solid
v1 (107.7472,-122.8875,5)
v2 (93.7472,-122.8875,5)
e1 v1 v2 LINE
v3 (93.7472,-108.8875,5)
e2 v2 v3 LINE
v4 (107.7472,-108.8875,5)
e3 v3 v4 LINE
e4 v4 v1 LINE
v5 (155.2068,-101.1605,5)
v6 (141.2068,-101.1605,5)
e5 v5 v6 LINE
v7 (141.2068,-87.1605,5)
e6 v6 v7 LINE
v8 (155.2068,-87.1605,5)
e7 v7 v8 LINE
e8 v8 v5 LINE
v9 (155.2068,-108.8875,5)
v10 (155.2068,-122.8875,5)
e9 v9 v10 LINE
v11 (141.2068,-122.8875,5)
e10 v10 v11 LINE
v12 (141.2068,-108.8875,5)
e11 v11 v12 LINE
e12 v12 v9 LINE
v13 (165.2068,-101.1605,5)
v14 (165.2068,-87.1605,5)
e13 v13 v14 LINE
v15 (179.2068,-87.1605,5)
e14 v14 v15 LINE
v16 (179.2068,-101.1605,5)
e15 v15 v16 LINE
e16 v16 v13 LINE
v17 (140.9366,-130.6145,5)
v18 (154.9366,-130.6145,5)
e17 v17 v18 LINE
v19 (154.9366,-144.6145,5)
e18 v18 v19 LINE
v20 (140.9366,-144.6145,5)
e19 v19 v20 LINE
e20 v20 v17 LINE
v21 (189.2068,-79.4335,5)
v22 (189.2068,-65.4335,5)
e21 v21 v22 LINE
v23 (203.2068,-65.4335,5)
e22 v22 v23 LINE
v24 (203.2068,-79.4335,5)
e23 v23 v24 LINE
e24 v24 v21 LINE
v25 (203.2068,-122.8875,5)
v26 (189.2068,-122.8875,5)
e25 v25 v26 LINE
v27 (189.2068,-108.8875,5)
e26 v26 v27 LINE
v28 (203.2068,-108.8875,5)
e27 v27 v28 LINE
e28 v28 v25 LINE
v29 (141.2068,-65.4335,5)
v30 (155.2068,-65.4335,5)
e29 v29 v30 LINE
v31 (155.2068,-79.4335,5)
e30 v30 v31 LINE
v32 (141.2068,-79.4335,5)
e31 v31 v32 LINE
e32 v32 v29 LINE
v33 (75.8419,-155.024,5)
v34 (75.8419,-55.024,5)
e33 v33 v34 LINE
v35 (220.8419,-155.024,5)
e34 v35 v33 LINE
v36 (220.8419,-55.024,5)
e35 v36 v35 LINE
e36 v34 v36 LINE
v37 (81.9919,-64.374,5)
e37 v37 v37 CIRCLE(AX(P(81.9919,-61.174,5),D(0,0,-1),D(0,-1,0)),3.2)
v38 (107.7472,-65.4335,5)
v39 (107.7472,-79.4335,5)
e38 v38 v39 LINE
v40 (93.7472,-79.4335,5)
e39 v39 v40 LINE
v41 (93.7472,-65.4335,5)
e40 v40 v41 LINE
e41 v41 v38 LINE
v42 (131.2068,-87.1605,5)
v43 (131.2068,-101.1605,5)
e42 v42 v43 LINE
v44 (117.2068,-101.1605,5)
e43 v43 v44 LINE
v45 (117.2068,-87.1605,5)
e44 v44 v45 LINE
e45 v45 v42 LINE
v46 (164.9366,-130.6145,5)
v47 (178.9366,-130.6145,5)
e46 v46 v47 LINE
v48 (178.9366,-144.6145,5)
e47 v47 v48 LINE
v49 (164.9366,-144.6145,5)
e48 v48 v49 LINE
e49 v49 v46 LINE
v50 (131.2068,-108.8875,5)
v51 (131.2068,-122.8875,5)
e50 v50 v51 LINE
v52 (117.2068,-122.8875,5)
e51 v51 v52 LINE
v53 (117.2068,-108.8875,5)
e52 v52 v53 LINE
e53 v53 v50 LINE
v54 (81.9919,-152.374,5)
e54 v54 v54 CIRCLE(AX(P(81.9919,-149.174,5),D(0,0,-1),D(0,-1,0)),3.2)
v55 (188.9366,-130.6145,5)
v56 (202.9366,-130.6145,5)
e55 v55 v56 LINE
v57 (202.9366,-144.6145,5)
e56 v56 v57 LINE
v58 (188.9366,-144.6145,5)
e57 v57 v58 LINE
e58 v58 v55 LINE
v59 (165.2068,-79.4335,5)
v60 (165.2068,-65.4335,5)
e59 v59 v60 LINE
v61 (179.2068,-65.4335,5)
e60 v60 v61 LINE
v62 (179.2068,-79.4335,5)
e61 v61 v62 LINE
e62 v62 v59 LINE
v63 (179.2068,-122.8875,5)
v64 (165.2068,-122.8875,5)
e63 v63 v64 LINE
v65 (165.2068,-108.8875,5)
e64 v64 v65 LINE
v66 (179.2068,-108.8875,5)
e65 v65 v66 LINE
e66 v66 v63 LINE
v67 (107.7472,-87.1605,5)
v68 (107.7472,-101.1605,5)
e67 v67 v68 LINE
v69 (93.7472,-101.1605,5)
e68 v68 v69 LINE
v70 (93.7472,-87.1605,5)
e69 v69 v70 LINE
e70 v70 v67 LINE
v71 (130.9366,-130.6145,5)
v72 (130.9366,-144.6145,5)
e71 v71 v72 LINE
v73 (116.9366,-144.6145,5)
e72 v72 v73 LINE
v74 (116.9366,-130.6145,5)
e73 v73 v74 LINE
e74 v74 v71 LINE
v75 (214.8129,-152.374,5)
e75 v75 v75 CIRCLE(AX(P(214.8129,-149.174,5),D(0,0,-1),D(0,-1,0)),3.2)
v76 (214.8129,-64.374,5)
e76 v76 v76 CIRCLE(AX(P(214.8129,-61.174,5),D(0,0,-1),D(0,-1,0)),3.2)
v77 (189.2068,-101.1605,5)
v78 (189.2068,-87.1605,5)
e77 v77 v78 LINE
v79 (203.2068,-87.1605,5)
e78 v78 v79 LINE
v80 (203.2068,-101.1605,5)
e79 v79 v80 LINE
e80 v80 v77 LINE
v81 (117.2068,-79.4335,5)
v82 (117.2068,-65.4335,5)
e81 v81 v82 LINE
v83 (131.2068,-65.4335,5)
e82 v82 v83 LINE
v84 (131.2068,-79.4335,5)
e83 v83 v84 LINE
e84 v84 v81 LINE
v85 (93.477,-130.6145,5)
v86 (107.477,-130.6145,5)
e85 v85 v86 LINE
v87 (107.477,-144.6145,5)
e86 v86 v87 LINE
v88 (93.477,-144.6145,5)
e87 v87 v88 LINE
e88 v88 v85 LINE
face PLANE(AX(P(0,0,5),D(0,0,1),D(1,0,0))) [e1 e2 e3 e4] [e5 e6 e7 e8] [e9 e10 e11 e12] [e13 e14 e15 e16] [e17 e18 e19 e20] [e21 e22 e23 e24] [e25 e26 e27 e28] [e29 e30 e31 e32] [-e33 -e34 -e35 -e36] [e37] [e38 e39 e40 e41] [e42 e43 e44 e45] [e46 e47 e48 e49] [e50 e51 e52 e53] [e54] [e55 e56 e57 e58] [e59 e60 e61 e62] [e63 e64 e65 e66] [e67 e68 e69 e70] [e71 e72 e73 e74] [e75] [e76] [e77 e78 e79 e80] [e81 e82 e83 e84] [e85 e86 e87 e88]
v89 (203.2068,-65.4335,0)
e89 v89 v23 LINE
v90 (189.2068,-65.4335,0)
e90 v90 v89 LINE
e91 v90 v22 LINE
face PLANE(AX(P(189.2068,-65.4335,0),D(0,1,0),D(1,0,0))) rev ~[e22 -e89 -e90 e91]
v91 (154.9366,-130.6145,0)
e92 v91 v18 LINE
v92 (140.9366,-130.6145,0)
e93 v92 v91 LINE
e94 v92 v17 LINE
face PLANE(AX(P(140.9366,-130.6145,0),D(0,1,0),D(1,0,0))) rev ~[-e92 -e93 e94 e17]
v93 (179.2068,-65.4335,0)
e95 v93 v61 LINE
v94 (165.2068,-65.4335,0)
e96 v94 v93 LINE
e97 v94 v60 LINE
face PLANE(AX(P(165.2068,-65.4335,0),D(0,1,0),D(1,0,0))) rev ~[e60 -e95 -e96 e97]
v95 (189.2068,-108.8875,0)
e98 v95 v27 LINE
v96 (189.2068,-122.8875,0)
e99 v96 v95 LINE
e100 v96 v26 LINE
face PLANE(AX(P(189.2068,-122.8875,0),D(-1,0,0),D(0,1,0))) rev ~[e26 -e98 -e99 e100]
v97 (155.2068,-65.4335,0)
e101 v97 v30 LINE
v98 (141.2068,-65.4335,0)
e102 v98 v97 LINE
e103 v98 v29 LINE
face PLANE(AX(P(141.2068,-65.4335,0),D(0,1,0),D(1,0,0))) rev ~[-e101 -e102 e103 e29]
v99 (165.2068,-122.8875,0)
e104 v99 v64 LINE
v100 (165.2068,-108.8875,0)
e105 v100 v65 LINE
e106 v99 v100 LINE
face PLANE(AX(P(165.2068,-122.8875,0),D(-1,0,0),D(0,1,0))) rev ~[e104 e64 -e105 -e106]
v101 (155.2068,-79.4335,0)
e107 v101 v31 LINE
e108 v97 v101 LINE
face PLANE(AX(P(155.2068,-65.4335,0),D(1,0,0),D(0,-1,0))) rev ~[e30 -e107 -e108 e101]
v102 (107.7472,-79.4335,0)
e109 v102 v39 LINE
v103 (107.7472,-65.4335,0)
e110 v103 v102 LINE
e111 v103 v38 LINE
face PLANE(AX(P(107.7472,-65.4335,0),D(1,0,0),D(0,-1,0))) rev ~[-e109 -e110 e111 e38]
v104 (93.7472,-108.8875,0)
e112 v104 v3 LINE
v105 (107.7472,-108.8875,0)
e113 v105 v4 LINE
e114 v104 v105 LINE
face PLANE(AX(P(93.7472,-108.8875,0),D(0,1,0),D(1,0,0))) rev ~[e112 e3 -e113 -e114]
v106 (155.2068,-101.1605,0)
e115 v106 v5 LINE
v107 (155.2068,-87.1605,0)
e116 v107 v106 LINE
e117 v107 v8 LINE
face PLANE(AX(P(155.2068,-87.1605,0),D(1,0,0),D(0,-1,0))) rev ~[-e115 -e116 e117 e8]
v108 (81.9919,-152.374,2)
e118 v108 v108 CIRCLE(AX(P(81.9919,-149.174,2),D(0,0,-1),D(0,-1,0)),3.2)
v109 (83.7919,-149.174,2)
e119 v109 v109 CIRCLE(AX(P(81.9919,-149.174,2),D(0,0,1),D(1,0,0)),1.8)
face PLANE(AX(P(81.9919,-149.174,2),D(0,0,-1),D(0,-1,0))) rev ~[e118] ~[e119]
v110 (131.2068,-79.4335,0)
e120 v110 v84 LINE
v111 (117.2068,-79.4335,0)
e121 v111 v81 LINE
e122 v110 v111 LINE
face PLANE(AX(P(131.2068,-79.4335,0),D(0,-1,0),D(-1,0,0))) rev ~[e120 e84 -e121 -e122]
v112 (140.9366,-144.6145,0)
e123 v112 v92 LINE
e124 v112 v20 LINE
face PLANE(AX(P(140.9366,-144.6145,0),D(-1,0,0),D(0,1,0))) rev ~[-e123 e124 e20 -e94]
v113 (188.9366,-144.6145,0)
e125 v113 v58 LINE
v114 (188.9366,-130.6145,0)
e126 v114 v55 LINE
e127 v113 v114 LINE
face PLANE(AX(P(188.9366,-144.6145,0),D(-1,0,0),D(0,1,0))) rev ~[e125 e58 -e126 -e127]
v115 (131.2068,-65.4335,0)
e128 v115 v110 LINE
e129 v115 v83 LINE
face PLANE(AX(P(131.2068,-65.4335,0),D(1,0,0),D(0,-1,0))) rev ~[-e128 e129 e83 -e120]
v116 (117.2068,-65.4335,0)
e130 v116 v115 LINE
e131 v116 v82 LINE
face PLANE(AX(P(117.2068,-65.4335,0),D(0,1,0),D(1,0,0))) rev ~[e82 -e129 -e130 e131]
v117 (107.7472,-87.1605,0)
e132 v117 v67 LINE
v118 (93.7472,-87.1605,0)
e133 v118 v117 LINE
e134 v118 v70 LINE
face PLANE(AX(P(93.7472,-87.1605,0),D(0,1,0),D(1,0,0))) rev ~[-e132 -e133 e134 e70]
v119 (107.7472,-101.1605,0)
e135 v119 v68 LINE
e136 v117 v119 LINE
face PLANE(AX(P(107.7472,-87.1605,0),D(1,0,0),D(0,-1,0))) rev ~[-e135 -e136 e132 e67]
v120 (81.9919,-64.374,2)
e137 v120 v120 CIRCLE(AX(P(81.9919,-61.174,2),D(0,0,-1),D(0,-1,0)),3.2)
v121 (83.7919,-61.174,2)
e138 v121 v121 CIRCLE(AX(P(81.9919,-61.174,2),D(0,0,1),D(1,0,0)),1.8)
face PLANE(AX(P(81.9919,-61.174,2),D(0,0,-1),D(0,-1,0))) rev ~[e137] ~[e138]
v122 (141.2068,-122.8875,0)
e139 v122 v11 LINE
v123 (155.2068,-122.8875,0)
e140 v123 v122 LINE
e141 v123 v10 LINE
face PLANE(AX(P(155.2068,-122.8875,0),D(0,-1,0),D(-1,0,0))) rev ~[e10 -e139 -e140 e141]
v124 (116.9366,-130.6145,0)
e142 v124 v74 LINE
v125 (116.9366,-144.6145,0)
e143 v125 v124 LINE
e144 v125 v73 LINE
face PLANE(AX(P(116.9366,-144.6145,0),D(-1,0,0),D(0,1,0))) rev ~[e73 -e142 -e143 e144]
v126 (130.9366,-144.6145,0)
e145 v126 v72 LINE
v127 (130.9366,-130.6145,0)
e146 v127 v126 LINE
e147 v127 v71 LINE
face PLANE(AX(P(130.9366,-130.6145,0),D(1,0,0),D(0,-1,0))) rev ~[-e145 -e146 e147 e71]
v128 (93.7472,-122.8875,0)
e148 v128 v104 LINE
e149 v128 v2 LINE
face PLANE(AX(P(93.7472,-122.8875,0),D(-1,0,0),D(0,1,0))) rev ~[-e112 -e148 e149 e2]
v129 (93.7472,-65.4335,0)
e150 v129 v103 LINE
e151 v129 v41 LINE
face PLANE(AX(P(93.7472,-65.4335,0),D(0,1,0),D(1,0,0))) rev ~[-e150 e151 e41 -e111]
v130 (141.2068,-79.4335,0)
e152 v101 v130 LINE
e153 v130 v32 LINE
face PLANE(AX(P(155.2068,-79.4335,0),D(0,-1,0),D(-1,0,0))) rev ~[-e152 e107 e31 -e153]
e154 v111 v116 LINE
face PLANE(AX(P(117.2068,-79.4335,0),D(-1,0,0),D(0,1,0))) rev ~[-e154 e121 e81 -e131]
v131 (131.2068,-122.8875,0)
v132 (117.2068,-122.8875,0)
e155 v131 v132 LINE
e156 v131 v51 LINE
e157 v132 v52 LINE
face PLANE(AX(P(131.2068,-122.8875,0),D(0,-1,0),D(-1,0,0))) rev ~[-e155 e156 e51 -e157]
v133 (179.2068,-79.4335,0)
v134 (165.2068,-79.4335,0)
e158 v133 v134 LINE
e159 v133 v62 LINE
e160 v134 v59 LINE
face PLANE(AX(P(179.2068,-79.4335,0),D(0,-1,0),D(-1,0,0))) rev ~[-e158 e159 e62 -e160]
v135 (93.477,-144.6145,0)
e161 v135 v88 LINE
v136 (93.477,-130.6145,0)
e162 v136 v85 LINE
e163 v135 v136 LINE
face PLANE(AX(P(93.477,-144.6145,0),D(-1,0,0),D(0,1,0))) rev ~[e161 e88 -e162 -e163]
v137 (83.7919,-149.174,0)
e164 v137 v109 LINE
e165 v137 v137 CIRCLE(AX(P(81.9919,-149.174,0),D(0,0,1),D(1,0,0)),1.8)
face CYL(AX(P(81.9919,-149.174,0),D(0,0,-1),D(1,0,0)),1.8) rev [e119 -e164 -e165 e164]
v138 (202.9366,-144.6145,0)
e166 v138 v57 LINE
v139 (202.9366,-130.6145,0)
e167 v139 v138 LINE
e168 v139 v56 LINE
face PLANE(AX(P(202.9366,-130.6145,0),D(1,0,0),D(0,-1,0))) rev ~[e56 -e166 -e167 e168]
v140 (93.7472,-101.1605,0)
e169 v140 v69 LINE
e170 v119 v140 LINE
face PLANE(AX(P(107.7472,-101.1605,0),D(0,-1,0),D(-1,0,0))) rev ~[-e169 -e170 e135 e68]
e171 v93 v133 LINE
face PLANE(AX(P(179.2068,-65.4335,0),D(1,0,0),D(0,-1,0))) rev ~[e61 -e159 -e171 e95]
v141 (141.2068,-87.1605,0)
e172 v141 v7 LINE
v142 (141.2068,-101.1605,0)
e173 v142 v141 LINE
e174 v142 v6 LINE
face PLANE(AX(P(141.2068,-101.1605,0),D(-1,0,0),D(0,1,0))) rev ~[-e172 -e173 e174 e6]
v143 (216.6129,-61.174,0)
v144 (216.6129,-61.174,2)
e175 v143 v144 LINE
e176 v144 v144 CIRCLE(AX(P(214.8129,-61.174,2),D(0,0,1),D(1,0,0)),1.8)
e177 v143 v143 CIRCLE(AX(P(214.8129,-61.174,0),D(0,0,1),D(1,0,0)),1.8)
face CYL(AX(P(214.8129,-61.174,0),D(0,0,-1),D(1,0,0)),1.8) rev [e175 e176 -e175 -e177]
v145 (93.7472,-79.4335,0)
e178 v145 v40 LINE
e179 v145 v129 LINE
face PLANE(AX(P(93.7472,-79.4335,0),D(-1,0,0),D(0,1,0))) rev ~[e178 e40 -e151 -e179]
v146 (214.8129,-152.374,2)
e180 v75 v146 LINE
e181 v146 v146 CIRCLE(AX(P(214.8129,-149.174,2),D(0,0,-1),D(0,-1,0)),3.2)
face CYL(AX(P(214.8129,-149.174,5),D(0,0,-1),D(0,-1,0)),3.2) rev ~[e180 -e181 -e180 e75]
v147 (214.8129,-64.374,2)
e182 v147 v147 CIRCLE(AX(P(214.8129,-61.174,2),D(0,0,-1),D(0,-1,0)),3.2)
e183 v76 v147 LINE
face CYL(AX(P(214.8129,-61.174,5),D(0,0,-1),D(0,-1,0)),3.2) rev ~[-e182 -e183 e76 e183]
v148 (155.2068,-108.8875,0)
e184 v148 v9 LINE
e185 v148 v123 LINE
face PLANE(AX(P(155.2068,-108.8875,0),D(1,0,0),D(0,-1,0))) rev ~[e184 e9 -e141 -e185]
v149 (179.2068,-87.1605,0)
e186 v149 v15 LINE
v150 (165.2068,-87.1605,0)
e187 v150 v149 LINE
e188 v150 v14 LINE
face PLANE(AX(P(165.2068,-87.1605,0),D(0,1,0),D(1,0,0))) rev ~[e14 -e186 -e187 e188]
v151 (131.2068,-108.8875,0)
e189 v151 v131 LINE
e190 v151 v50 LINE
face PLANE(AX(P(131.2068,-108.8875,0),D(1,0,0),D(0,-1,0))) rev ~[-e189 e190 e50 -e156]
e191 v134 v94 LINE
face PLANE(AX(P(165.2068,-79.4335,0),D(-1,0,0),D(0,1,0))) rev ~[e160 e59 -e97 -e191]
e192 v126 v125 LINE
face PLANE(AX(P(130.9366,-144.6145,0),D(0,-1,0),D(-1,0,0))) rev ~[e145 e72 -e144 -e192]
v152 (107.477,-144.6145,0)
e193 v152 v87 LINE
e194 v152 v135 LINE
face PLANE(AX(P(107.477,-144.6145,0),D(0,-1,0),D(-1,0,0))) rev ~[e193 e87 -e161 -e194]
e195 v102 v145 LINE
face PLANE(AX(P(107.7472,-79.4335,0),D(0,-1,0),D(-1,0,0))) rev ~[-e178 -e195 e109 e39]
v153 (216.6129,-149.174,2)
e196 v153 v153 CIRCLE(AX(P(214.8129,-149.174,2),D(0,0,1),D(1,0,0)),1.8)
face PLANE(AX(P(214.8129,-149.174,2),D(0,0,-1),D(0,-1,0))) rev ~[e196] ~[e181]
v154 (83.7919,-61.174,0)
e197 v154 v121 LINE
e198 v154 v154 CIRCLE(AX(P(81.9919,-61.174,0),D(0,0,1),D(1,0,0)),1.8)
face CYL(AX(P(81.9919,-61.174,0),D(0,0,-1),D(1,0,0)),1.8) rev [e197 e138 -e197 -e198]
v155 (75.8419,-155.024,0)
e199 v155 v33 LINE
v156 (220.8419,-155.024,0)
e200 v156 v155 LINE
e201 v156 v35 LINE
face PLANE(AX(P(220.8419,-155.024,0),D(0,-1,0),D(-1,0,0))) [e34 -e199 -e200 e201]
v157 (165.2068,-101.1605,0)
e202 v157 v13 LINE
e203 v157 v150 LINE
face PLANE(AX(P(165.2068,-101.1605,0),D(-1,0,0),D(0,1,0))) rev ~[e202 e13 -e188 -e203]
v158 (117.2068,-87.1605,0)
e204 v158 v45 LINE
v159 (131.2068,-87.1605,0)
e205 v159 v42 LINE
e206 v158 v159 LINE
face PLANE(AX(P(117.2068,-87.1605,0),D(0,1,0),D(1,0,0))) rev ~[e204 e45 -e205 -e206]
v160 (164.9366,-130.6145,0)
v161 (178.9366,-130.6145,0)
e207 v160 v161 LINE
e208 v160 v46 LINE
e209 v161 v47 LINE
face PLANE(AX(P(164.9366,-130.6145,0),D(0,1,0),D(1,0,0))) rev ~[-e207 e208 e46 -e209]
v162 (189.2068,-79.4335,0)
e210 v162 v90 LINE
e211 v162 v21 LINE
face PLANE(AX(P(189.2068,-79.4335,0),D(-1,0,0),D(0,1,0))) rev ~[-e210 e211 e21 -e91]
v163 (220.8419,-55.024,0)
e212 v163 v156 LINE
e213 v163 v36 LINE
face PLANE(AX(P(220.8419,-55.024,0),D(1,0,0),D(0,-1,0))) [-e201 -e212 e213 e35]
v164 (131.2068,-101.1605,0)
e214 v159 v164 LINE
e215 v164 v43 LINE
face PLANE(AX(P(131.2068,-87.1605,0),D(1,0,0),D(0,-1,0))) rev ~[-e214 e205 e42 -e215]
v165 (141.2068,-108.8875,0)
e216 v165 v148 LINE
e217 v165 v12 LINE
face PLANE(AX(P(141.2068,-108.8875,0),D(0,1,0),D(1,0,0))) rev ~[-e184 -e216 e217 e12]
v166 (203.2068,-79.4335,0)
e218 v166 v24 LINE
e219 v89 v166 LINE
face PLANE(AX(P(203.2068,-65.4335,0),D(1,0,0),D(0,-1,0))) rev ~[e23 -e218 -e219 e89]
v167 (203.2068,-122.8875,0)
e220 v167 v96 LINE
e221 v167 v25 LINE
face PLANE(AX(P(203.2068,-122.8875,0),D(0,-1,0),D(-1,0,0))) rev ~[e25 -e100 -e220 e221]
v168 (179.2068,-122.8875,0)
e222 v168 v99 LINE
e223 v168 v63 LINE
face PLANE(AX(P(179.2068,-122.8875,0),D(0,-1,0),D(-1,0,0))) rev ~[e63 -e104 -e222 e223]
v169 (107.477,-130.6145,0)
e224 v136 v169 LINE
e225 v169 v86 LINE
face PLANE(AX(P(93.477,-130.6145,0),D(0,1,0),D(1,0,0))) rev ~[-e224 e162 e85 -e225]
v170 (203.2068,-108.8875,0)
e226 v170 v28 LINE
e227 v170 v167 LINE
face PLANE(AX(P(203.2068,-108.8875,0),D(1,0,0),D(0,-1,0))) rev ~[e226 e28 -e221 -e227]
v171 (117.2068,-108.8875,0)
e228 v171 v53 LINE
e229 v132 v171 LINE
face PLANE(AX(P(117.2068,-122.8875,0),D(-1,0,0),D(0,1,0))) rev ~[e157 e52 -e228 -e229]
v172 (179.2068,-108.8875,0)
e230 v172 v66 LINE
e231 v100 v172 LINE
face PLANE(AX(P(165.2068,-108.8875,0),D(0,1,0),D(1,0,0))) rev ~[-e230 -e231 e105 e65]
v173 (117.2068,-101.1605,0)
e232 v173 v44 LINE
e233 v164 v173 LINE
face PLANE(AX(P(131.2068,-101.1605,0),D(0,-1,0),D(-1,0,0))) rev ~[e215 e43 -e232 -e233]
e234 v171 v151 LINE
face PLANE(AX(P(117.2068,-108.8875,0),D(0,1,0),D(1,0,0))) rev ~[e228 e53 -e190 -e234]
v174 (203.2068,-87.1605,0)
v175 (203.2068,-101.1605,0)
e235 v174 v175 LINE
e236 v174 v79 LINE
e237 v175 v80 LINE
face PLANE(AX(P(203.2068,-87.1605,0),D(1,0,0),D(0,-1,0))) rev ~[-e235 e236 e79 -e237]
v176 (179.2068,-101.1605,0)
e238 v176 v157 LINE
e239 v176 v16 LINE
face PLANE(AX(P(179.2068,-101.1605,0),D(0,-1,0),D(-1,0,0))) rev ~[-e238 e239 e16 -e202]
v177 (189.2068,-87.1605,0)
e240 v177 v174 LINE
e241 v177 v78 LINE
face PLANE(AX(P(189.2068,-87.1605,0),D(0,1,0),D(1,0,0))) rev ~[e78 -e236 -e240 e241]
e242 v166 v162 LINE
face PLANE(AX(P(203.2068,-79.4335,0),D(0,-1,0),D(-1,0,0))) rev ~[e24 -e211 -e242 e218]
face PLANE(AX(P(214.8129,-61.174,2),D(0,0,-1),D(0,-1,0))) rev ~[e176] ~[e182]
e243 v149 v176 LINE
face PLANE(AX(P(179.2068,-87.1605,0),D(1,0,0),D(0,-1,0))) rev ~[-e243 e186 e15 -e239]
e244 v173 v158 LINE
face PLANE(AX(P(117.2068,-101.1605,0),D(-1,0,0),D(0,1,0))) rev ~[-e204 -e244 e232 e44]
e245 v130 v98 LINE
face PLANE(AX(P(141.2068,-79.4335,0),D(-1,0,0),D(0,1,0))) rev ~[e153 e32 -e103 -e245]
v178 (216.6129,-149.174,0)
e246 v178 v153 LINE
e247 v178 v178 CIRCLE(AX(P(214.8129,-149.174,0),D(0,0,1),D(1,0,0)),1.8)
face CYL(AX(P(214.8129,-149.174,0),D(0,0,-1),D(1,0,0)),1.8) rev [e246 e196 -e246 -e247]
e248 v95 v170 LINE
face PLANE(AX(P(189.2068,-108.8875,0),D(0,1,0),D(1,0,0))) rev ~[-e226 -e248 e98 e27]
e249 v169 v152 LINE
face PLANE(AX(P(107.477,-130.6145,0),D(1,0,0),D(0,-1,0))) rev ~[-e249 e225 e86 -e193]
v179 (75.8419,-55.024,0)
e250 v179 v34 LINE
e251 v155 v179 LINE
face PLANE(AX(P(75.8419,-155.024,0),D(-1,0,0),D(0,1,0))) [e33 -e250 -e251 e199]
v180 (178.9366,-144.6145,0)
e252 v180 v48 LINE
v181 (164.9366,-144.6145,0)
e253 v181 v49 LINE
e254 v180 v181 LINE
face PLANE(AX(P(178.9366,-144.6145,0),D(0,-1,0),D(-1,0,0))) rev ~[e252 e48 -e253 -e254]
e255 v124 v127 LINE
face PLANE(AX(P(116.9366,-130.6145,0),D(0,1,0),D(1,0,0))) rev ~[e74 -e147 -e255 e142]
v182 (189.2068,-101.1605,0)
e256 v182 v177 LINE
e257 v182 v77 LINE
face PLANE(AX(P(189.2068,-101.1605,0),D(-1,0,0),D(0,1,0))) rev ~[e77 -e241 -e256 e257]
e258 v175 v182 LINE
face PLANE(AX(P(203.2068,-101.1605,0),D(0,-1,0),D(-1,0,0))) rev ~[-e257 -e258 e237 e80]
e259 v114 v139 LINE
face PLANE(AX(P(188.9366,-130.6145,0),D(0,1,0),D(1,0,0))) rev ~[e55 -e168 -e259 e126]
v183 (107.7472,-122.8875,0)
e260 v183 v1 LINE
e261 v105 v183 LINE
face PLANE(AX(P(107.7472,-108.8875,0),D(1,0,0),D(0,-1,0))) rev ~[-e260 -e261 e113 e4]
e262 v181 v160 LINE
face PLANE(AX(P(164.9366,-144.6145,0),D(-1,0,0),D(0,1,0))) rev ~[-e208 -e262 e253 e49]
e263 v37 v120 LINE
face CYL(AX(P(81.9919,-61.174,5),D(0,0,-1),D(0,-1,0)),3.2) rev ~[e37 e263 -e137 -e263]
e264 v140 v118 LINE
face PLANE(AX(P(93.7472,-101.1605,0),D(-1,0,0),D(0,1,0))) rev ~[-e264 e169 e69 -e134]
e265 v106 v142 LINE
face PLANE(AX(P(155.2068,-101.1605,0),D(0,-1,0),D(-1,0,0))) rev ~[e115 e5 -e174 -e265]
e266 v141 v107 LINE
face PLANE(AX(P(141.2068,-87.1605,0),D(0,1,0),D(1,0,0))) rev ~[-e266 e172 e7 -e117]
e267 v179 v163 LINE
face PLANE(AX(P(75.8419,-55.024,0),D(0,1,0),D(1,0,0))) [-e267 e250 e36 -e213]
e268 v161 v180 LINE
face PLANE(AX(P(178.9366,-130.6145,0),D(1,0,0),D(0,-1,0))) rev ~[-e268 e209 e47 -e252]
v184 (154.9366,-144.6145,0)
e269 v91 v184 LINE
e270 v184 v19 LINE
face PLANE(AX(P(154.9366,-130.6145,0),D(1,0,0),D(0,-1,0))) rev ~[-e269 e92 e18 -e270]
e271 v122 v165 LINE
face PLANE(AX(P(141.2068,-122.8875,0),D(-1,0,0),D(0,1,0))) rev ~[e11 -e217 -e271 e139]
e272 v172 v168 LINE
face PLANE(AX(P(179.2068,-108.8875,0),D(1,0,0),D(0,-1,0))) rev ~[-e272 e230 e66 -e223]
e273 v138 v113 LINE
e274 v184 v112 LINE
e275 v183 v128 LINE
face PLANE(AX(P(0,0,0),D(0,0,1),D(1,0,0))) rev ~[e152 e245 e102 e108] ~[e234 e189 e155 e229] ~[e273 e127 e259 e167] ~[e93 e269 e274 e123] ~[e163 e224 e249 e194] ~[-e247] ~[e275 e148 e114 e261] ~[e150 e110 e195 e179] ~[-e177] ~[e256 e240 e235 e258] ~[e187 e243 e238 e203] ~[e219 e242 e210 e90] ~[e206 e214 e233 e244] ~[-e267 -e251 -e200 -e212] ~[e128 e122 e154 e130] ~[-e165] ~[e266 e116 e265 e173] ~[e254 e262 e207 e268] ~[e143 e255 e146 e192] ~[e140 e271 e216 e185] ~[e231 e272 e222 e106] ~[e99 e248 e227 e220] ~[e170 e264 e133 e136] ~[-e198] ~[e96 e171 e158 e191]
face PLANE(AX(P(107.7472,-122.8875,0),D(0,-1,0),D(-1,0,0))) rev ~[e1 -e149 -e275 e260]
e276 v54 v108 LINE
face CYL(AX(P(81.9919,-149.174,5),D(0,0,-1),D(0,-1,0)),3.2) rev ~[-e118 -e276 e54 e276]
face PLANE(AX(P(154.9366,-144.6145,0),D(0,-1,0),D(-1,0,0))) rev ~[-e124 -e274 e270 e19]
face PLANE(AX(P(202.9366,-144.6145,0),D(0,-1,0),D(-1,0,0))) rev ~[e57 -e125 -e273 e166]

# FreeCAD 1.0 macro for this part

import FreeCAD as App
import Part
import Sketcher

V = App.Vector


def add_polygon(sketch, points):
    """Adds a closed chain of lines whose ends are joined by coincident constraints."""
    first, n = sketch.GeometryCount, len(points)
    for a, b in zip(points, points[1:] + points[:1]):
        sketch.addGeometry(Part.LineSegment(App.Vector(*a, 0), App.Vector(*b, 0)), False)
    for i in range(n):
        sketch.addConstraint(Sketcher.Constraint("Coincident", first + i, 2, first + (i + 1) % n, 1))

doc = App.newDocument("Part")
params = doc.addObject("Spreadsheet::Sheet", "Params")
for row, (alias, value) in enumerate([
    ("sketch1_diameter", "3.6 mm"),
    ("sketch1_width", "145 mm"),
    ("sketch1_width2", "14 mm"),
    ("sketch1_height", "100 mm"),
    ("pad1_length", "5 mm"),
    ("sketch2_diameter", "3.6 mm"),
    ("hole_diameter", "3.6 mm"),
    ("hole_depth", "25 mm"),
    ("hole_cbore_diameter", "6.4 mm"),
    ("hole_cbore_depth", "3 mm"),
    ("sketch3_diameter", "3.6 mm"),
    ("hole2_diameter", "3.6 mm"),
    ("hole2_depth", "25 mm"),
    ("hole2_cbore_diameter", "6.4 mm"),
    ("hole2_cbore_depth", "3 mm"),
    ("sketch4_diameter", "3.6 mm"),
    ("hole3_diameter", "3.6 mm"),
    ("hole3_depth", "25 mm"),
    ("hole3_cbore_diameter", "6.4 mm"),
    ("hole3_cbore_depth", "3 mm"),
    ("sketch5_diameter", "3.6 mm"),
    ("hole4_diameter", "3.6 mm"),
    ("hole4_depth", "25 mm"),
    ("hole4_cbore_diameter", "6.4 mm"),
    ("hole4_cbore_depth", "3 mm"),
], start=1):
    params.set(f"A{row}", alias)
    params.set(f"B{row}", "=" + value)
    params.setAlias(f"B{row}", alias)

body = doc.addObject("PartDesign::Body", "Body")

sketch1 = body.newObject("Sketcher::SketchObject", "Sketch")
sketch1.AttachmentSupport = (doc.getObject("XY_Plane"), [""])
sketch1.MapMode = "FlatFace"
add_polygon(sketch1, [(75.8419, -155.024), (220.8419, -155.024), (220.8419, -55.024), (75.8419, -55.024)])
sketch1.addGeometry(Part.Circle(V(81.9919, -149.174, 0), V(0, 0, 1), 1.8), False)
add_polygon(sketch1, [(107.477, -130.6145), (107.477, -144.6145), (93.477, -144.6145), (93.477, -130.6145)])
add_polygon(sketch1, [(130.9366, -130.6145), (130.9366, -144.6145), (116.9366, -144.6145), (116.9366, -130.6145)])
add_polygon(sketch1, [(140.9366, -144.6145), (140.9366, -130.6145), (154.9366, -130.6145), (154.9366, -144.6145)])
add_polygon(sketch1, [(107.7472, -108.8875), (107.7472, -122.8875), (93.7472, -122.8875), (93.7472, -108.8875)])
add_polygon(sketch1, [(131.2068, -122.8875), (117.2068, -122.8875), (117.2068, -108.8875), (131.2068, -108.8875)])
add_polygon(sketch1, [(155.2068, -108.8875), (155.2068, -122.8875), (141.2068, -122.8875), (141.2068, -108.8875)])
add_polygon(sketch1, [(178.9366, -144.6145), (164.9366, -144.6145), (164.9366, -130.6145), (178.9366, -130.6145)])
sketch1.addGeometry(Part.Circle(V(214.8129, -149.174, 0), V(0, 0, 1), 1.8), False)
add_polygon(sketch1, [(202.9366, -144.6145), (188.9366, -144.6145), (188.9366, -130.6145), (202.9366, -130.6145)])
add_polygon(sketch1, [(179.2068, -108.8875), (179.2068, -122.8875), (165.2068, -122.8875), (165.2068, -108.8875)])
add_polygon(sketch1, [(189.2068, -122.8875), (189.2068, -108.8875), (203.2068, -108.8875), (203.2068, -122.8875)])
add_polygon(sketch1, [(93.7472, -87.1605), (107.7472, -87.1605), (107.7472, -101.1605), (93.7472, -101.1605)])
add_polygon(sketch1, [(117.2068, -101.1605), (117.2068, -87.1605), (131.2068, -87.1605), (131.2068, -101.1605)])
add_polygon(sketch1, [(141.2068, -87.1605), (155.2068, -87.1605), (155.2068, -101.1605), (141.2068, -101.1605)])
add_polygon(sketch1, [(107.7472, -79.4335), (93.7472, -79.4335), (93.7472, -65.4335), (107.7472, -65.4335)])
sketch1.addGeometry(Part.Circle(V(81.9919, -61.174, 0), V(0, 0, 1), 1.8), False)
add_polygon(sketch1, [(117.2068, -65.4335), (131.2068, -65.4335), (131.2068, -79.4335), (117.2068, -79.4335)])
add_polygon(sketch1, [(141.2068, -79.4335), (141.2068, -65.4335), (155.2068, -65.4335), (155.2068, -79.4335)])
add_polygon(sketch1, [(165.2068, -101.1605), (165.2068, -87.1605), (179.2068, -87.1605), (179.2068, -101.1605)])
add_polygon(sketch1, [(203.2068, -87.1605), (203.2068, -101.1605), (189.2068, -101.1605), (189.2068, -87.1605)])
add_polygon(sketch1, [(165.2068, -79.4335), (165.2068, -65.4335), (179.2068, -65.4335), (179.2068, -79.4335)])
add_polygon(sketch1, [(203.2068, -79.4335), (189.2068, -79.4335), (189.2068, -65.4335), (203.2068, -65.4335)])
sketch1.addGeometry(Part.Circle(V(214.8129, -61.174, 0), V(0, 0, 1), 1.8), False)
sketch1.addConstraint([
    Sketcher.Constraint("Horizontal", 0),
    Sketcher.Constraint("Vertical", 1),
    Sketcher.Constraint("Horizontal", 2),
    Sketcher.Constraint("Vertical", 3),
    Sketcher.Constraint("Vertical", 5),
    Sketcher.Constraint("Horizontal", 6),
    Sketcher.Constraint("Vertical", 7),
    Sketcher.Constraint("Horizontal", 8),
    Sketcher.Constraint("Vertical", 9),
    Sketcher.Constraint("Horizontal", 10),
    Sketcher.Constraint("Vertical", 11),
    Sketcher.Constraint("Horizontal", 12),
    Sketcher.Constraint("Vertical", 13),
    Sketcher.Constraint("Horizontal", 14),
    Sketcher.Constraint("Vertical", 15),
    Sketcher.Constraint("Horizontal", 16),
    Sketcher.Constraint("Vertical", 17),
    Sketcher.Constraint("Horizontal", 18),
    Sketcher.Constraint("Vertical", 19),
    Sketcher.Constraint("Horizontal", 20),
    Sketcher.Constraint("Horizontal", 21),
    Sketcher.Constraint("Vertical", 22),
    Sketcher.Constraint("Horizontal", 23),
    Sketcher.Constraint("Vertical", 24),
    Sketcher.Constraint("Vertical", 25),
    Sketcher.Constraint("Horizontal", 26),
    Sketcher.Constraint("Vertical", 27),
    Sketcher.Constraint("Horizontal", 28),
    Sketcher.Constraint("Horizontal", 29),
    Sketcher.Constraint("Vertical", 30),
    Sketcher.Constraint("Horizontal", 31),
    Sketcher.Constraint("Vertical", 32),
    Sketcher.Constraint("Horizontal", 34),
    Sketcher.Constraint("Vertical", 35),
    Sketcher.Constraint("Horizontal", 36),
    Sketcher.Constraint("Vertical", 37),
    Sketcher.Constraint("Vertical", 38),
    Sketcher.Constraint("Horizontal", 39),
    Sketcher.Constraint("Vertical", 40),
    Sketcher.Constraint("Horizontal", 41),
    Sketcher.Constraint("Vertical", 42),
    Sketcher.Constraint("Horizontal", 43),
    Sketcher.Constraint("Vertical", 44),
    Sketcher.Constraint("Horizontal", 45),
    Sketcher.Constraint("Horizontal", 46),
    Sketcher.Constraint("Vertical", 47),
    Sketcher.Constraint("Horizontal", 48),
    Sketcher.Constraint("Vertical", 49),
    Sketcher.Constraint("Vertical", 50),
    Sketcher.Constraint("Horizontal", 51),
    Sketcher.Constraint("Vertical", 52),
    Sketcher.Constraint("Horizontal", 53),
    Sketcher.Constraint("Horizontal", 54),
    Sketcher.Constraint("Vertical", 55),
    Sketcher.Constraint("Horizontal", 56),
    Sketcher.Constraint("Vertical", 57),
    Sketcher.Constraint("Horizontal", 58),
    Sketcher.Constraint("Vertical", 59),
    Sketcher.Constraint("Horizontal", 60),
    Sketcher.Constraint("Vertical", 61),
    Sketcher.Constraint("Horizontal", 63),
    Sketcher.Constraint("Vertical", 64),
    Sketcher.Constraint("Horizontal", 65),
    Sketcher.Constraint("Vertical", 66),
    Sketcher.Constraint("Vertical", 67),
    Sketcher.Constraint("Horizontal", 68),
    Sketcher.Constraint("Vertical", 69),
    Sketcher.Constraint("Horizontal", 70),
    Sketcher.Constraint("Vertical", 71),
    Sketcher.Constraint("Horizontal", 72),
    Sketcher.Constraint("Vertical", 73),
    Sketcher.Constraint("Horizontal", 74),
    Sketcher.Constraint("Vertical", 75),
    Sketcher.Constraint("Horizontal", 76),
    Sketcher.Constraint("Vertical", 77),
    Sketcher.Constraint("Horizontal", 78),
    Sketcher.Constraint("Vertical", 79),
    Sketcher.Constraint("Horizontal", 80),
    Sketcher.Constraint("Vertical", 81),
    Sketcher.Constraint("Horizontal", 82),
    Sketcher.Constraint("Horizontal", 83),
    Sketcher.Constraint("Vertical", 84),
    Sketcher.Constraint("Horizontal", 85),
    Sketcher.Constraint("Vertical", 86),
    Sketcher.Constraint("Equal", 4, 33),
    Sketcher.Constraint("Equal", 33, 62),
    Sketcher.Constraint("Equal", 62, 87),
    Sketcher.Constraint("Horizontal", 4, 3, 33, 3),
    Sketcher.Constraint("Horizontal", 62, 3, 87, 3),
    Sketcher.Constraint("Horizontal", 6, 2, 9, 2),
    Sketcher.Constraint("Horizontal", 8, 2, 11, 2),
    Sketcher.Constraint("Horizontal", 12, 2, 13, 2),
    Sketcher.Constraint("Horizontal", 10, 2, 15, 2),
    Sketcher.Constraint("Horizontal", 18, 2, 21, 2),
    Sketcher.Constraint("Horizontal", 20, 2, 22, 2),
    Sketcher.Constraint("Horizontal", 24, 2, 25, 2),
    Sketcher.Constraint("Horizontal", 23, 2, 27, 2),
    Sketcher.Constraint("Horizontal", 16, 2, 29, 2),
    Sketcher.Constraint("Horizontal", 14, 2, 30, 2),
    Sketcher.Constraint("Horizontal", 32, 2, 34, 2),
    Sketcher.Constraint("Horizontal", 31, 2, 35, 2),
    Sketcher.Constraint("Horizontal", 26, 2, 38, 2),
    Sketcher.Constraint("Horizontal", 28, 2, 40, 2),
    Sketcher.Constraint("Horizontal", 41, 2, 42, 2),
    Sketcher.Constraint("Horizontal", 39, 2, 44, 2),
    Sketcher.Constraint("Horizontal", 49, 2, 50, 2),
    Sketcher.Constraint("Horizontal", 48, 2, 52, 2),
    Sketcher.Constraint("Horizontal", 51, 2, 54, 2),
    Sketcher.Constraint("Horizontal", 53, 2, 55, 2),
    Sketcher.Constraint("Horizontal", 60, 2, 63, 2),
    Sketcher.Constraint("Horizontal", 61, 2, 64, 2),
    Sketcher.Constraint("Horizontal", 66, 2, 67, 2),
    Sketcher.Constraint("Horizontal", 65, 2, 69, 2),
    Sketcher.Constraint("Horizontal", 57, 2, 71, 2),
    Sketcher.Constraint("Horizontal", 56, 2, 73, 2),
    Sketcher.Constraint("Horizontal", 74, 2, 75, 2),
    Sketcher.Constraint("Horizontal", 72, 2, 77, 2),
    Sketcher.Constraint("Horizontal", 68, 2, 79, 2),
    Sketcher.Constraint("Horizontal", 70, 2, 81, 2),
    Sketcher.Constraint("Horizontal", 82, 2, 83, 2),
    Sketcher.Constraint("Horizontal", 80, 2, 84, 2),
    Sketcher.Constraint("Vertical", 4, 3, 62, 3),
    Sketcher.Constraint("Vertical", 33, 3, 87, 3),
    Sketcher.Constraint("Vertical", 20, 2, 46, 2),
    Sketcher.Constraint("Vertical", 19, 2, 48, 2),
    Sketcher.Constraint("Vertical", 22, 2, 50, 2),
    Sketcher.Constraint("Vertical", 24, 2, 51, 2),
    Sketcher.Constraint("Vertical", 28, 2, 54, 2),
    Sketcher.Constraint("Vertical", 27, 2, 56, 2),
    Sketcher.Constraint("Vertical", 49, 2, 58, 2),
    Sketcher.Constraint("Vertical", 47, 2, 60, 2),
    Sketcher.Constraint("Vertical", 52, 2, 63, 2),
    Sketcher.Constraint("Vertical", 53, 2, 65, 2),
    Sketcher.Constraint("Vertical", 57, 2, 67, 2),
    Sketcher.Constraint("Vertical", 55, 2, 68, 2),
    Sketcher.Constraint("Vertical", 40, 2, 71, 2),
    Sketcher.Constraint("Vertical", 41, 2, 72, 2),
    Sketcher.Constraint("Vertical", 44, 2, 75, 2),
    Sketcher.Constraint("Vertical", 45, 2, 76, 2),
    Sketcher.Constraint("Vertical", 74, 2, 79, 2),
    Sketcher.Constraint("Vertical", 73, 2, 80, 2),
    Sketcher.Constraint("Vertical", 77, 2, 83, 2),
    Sketcher.Constraint("Vertical", 78, 2, 85, 2),
    Sketcher.Constraint("Equal", 8, 10),
    Sketcher.Constraint("Equal", 12, 14),
    Sketcher.Constraint("Equal", 16, 18),
    Sketcher.Constraint("Equal", 20, 21),
    Sketcher.Constraint("Equal", 23, 26),
    Sketcher.Constraint("Equal", 28, 29),
    Sketcher.Constraint("Equal", 31, 34),
    Sketcher.Constraint("Equal", 36, 39),
    Sketcher.Constraint("Equal", 41, 43),
    Sketcher.Constraint("Equal", 85, 5),
    Sketcher.Constraint("Equal", 15, 17),
    Sketcher.Constraint("Equal", 44, 47),
    Sketcher.Constraint("Equal", 57, 59),
    Sketcher.Constraint("Diameter", 4, 3.6),
    Sketcher.Constraint("DistanceX", 0, 1, 0, 2, 145.0),
    Sketcher.Constraint("DistanceX", 6, 2, 6, 1, 14.0),
    Sketcher.Constraint("DistanceY", 1, 1, 1, 2, 100.0),
    Sketcher.Constraint("DistanceX", -1, 1, 4, 3, 81.992),
    Sketcher.Constraint("DistanceY", 4, 3, -1, 1, 149.174),
    Sketcher.Constraint("DistanceX", -1, 1, 33, 3, 214.813),
    Sketcher.Constraint("DistanceY", 62, 3, -1, 1, 61.174),
    Sketcher.Constraint("DistanceX", -1, 1, 0, 2, 220.842),
    Sketcher.Constraint("DistanceY", 0, 2, -1, 1, 155.024),
    Sketcher.Constraint("DistanceX", -1, 1, 5, 2, 107.477),
    Sketcher.Constraint("DistanceY", 5, 2, -1, 1, 144.6145),
    Sketcher.Constraint("DistanceX", -1, 1, 9, 2, 130.9366),
    Sketcher.Constraint("DistanceX", -1, 1, 13, 2, 140.9366),
    Sketcher.Constraint("DistanceX", -1, 1, 17, 2, 107.7472),
    Sketcher.Constraint("DistanceY", 17, 2, -1, 1, 122.8875),
    Sketcher.Constraint("DistanceX", -1, 1, 21, 2, 117.2068),
    Sketcher.Constraint("DistanceX", -1, 1, 25, 2, 155.2068),
    Sketcher.Constraint("DistanceX", -1, 1, 29, 2, 164.9366),
    Sketcher.Constraint("DistanceX", -1, 1, 34, 2, 188.9366),
    Sketcher.Constraint("DistanceX", -1, 1, 38, 2, 179.2068),
    Sketcher.Constraint("DistanceX", -1, 1, 42, 2, 189.2068),
    Sketcher.Constraint("DistanceY", 46, 2, -1, 1, 87.1605),
    Sketcher.Constraint("DistanceY", 58, 2, -1, 1, 79.4335),
])
sketch1.setExpression("Constraints[240]", "Params.sketch1_diameter")
sketch1.setExpression("Constraints[241]", "Params.sketch1_width")
sketch1.setExpression("Constraints[242]", "Params.sketch1_width2")
sketch1.setExpression("Constraints[243]", "Params.sketch1_height")
pad1 = body.newObject("PartDesign::Pad", "Pad")
pad1.Profile = sketch1
pad1.setExpression("Length", "Params.pad1_length")

sketch2 = body.newObject("Sketcher::SketchObject", "Sketch001")
sketch2.AttachmentSupport = (doc.getObject("XY_Plane"), [""])
sketch2.MapMode = "FlatFace"
sketch2.AttachmentOffset = App.Placement(V(0, 0, 5), App.Rotation())
sketch2.addGeometry(Part.Circle(V(81.9919, -61.174, 0), V(0, 0, 1), 1.8), False)
sketch2.addConstraint([
    Sketcher.Constraint("Diameter", 0, 3.6),
    Sketcher.Constraint("DistanceX", -1, 1, 0, 3, 81.992),
    Sketcher.Constraint("DistanceY", 0, 3, -1, 1, 61.174),
])
sketch2.setExpression("Constraints[0]", "Params.sketch2_diameter")
doc.recompute()
hole = body.newObject("PartDesign::Hole", "Hole")
hole.Profile = sketch2
hole.ThreadType = "None"
hole.setExpression("Diameter", "Params.hole_diameter")
hole.DepthType = "Dimension"
hole.setExpression("Depth", "Params.hole_depth")
hole.DrillPoint = "Flat"
hole.HoleCutType = "Counterbore"
hole.setExpression("HoleCutDiameter", "Params.hole_cbore_diameter")
hole.setExpression("HoleCutDepth", "Params.hole_cbore_depth")

sketch3 = body.newObject("Sketcher::SketchObject", "Sketch002")
sketch3.AttachmentSupport = (doc.getObject("XY_Plane"), [""])
sketch3.MapMode = "FlatFace"
sketch3.AttachmentOffset = App.Placement(V(0, 0, 5), App.Rotation())
sketch3.addGeometry(Part.Circle(V(81.9919, -149.174, 0), V(0, 0, 1), 1.8), False)
sketch3.addConstraint([
    Sketcher.Constraint("Diameter", 0, 3.6),
    Sketcher.Constraint("DistanceX", -1, 1, 0, 3, 81.992),
    Sketcher.Constraint("DistanceY", 0, 3, -1, 1, 149.174),
])
sketch3.setExpression("Constraints[0]", "Params.sketch3_diameter")
doc.recompute()
hole2 = body.newObject("PartDesign::Hole", "Hole001")
hole2.Profile = sketch3
hole2.ThreadType = "None"
hole2.setExpression("Diameter", "Params.hole2_diameter")
hole2.DepthType = "Dimension"
hole2.setExpression("Depth", "Params.hole2_depth")
hole2.DrillPoint = "Flat"
hole2.HoleCutType = "Counterbore"
hole2.setExpression("HoleCutDiameter", "Params.hole2_cbore_diameter")
hole2.setExpression("HoleCutDepth", "Params.hole2_cbore_depth")

sketch4 = body.newObject("Sketcher::SketchObject", "Sketch003")
sketch4.AttachmentSupport = (doc.getObject("XY_Plane"), [""])
sketch4.MapMode = "FlatFace"
sketch4.AttachmentOffset = App.Placement(V(0, 0, 5), App.Rotation())
sketch4.addGeometry(Part.Circle(V(214.8129, -149.174, 0), V(0, 0, 1), 1.8), False)
sketch4.addConstraint([
    Sketcher.Constraint("Diameter", 0, 3.6),
    Sketcher.Constraint("DistanceX", -1, 1, 0, 3, 214.813),
    Sketcher.Constraint("DistanceY", 0, 3, -1, 1, 149.174),
])
sketch4.setExpression("Constraints[0]", "Params.sketch4_diameter")
doc.recompute()
hole3 = body.newObject("PartDesign::Hole", "Hole002")
hole3.Profile = sketch4
hole3.ThreadType = "None"
hole3.setExpression("Diameter", "Params.hole3_diameter")
hole3.DepthType = "Dimension"
hole3.setExpression("Depth", "Params.hole3_depth")
hole3.DrillPoint = "Flat"
hole3.HoleCutType = "Counterbore"
hole3.setExpression("HoleCutDiameter", "Params.hole3_cbore_diameter")
hole3.setExpression("HoleCutDepth", "Params.hole3_cbore_depth")

sketch5 = body.newObject("Sketcher::SketchObject", "Sketch004")
sketch5.AttachmentSupport = (doc.getObject("XY_Plane"), [""])
sketch5.MapMode = "FlatFace"
sketch5.AttachmentOffset = App.Placement(V(0, 0, 5), App.Rotation())
sketch5.addGeometry(Part.Circle(V(214.8129, -61.174, 0), V(0, 0, 1), 1.8), False)
sketch5.addConstraint([
    Sketcher.Constraint("Diameter", 0, 3.6),
    Sketcher.Constraint("DistanceX", -1, 1, 0, 3, 214.813),
    Sketcher.Constraint("DistanceY", 0, 3, -1, 1, 61.174),
])
sketch5.setExpression("Constraints[0]", "Params.sketch5_diameter")
doc.recompute()
hole4 = body.newObject("PartDesign::Hole", "Hole003")
hole4.Profile = sketch5
hole4.ThreadType = "None"
hole4.setExpression("Diameter", "Params.hole4_diameter")
hole4.DepthType = "Dimension"
hole4.setExpression("Depth", "Params.hole4_depth")
hole4.DrillPoint = "Flat"
hole4.HoleCutType = "Counterbore"
hole4.setExpression("HoleCutDiameter", "Params.hole4_cbore_diameter")
hole4.setExpression("HoleCutDepth", "Params.hole4_cbore_depth")

doc.recompute()
